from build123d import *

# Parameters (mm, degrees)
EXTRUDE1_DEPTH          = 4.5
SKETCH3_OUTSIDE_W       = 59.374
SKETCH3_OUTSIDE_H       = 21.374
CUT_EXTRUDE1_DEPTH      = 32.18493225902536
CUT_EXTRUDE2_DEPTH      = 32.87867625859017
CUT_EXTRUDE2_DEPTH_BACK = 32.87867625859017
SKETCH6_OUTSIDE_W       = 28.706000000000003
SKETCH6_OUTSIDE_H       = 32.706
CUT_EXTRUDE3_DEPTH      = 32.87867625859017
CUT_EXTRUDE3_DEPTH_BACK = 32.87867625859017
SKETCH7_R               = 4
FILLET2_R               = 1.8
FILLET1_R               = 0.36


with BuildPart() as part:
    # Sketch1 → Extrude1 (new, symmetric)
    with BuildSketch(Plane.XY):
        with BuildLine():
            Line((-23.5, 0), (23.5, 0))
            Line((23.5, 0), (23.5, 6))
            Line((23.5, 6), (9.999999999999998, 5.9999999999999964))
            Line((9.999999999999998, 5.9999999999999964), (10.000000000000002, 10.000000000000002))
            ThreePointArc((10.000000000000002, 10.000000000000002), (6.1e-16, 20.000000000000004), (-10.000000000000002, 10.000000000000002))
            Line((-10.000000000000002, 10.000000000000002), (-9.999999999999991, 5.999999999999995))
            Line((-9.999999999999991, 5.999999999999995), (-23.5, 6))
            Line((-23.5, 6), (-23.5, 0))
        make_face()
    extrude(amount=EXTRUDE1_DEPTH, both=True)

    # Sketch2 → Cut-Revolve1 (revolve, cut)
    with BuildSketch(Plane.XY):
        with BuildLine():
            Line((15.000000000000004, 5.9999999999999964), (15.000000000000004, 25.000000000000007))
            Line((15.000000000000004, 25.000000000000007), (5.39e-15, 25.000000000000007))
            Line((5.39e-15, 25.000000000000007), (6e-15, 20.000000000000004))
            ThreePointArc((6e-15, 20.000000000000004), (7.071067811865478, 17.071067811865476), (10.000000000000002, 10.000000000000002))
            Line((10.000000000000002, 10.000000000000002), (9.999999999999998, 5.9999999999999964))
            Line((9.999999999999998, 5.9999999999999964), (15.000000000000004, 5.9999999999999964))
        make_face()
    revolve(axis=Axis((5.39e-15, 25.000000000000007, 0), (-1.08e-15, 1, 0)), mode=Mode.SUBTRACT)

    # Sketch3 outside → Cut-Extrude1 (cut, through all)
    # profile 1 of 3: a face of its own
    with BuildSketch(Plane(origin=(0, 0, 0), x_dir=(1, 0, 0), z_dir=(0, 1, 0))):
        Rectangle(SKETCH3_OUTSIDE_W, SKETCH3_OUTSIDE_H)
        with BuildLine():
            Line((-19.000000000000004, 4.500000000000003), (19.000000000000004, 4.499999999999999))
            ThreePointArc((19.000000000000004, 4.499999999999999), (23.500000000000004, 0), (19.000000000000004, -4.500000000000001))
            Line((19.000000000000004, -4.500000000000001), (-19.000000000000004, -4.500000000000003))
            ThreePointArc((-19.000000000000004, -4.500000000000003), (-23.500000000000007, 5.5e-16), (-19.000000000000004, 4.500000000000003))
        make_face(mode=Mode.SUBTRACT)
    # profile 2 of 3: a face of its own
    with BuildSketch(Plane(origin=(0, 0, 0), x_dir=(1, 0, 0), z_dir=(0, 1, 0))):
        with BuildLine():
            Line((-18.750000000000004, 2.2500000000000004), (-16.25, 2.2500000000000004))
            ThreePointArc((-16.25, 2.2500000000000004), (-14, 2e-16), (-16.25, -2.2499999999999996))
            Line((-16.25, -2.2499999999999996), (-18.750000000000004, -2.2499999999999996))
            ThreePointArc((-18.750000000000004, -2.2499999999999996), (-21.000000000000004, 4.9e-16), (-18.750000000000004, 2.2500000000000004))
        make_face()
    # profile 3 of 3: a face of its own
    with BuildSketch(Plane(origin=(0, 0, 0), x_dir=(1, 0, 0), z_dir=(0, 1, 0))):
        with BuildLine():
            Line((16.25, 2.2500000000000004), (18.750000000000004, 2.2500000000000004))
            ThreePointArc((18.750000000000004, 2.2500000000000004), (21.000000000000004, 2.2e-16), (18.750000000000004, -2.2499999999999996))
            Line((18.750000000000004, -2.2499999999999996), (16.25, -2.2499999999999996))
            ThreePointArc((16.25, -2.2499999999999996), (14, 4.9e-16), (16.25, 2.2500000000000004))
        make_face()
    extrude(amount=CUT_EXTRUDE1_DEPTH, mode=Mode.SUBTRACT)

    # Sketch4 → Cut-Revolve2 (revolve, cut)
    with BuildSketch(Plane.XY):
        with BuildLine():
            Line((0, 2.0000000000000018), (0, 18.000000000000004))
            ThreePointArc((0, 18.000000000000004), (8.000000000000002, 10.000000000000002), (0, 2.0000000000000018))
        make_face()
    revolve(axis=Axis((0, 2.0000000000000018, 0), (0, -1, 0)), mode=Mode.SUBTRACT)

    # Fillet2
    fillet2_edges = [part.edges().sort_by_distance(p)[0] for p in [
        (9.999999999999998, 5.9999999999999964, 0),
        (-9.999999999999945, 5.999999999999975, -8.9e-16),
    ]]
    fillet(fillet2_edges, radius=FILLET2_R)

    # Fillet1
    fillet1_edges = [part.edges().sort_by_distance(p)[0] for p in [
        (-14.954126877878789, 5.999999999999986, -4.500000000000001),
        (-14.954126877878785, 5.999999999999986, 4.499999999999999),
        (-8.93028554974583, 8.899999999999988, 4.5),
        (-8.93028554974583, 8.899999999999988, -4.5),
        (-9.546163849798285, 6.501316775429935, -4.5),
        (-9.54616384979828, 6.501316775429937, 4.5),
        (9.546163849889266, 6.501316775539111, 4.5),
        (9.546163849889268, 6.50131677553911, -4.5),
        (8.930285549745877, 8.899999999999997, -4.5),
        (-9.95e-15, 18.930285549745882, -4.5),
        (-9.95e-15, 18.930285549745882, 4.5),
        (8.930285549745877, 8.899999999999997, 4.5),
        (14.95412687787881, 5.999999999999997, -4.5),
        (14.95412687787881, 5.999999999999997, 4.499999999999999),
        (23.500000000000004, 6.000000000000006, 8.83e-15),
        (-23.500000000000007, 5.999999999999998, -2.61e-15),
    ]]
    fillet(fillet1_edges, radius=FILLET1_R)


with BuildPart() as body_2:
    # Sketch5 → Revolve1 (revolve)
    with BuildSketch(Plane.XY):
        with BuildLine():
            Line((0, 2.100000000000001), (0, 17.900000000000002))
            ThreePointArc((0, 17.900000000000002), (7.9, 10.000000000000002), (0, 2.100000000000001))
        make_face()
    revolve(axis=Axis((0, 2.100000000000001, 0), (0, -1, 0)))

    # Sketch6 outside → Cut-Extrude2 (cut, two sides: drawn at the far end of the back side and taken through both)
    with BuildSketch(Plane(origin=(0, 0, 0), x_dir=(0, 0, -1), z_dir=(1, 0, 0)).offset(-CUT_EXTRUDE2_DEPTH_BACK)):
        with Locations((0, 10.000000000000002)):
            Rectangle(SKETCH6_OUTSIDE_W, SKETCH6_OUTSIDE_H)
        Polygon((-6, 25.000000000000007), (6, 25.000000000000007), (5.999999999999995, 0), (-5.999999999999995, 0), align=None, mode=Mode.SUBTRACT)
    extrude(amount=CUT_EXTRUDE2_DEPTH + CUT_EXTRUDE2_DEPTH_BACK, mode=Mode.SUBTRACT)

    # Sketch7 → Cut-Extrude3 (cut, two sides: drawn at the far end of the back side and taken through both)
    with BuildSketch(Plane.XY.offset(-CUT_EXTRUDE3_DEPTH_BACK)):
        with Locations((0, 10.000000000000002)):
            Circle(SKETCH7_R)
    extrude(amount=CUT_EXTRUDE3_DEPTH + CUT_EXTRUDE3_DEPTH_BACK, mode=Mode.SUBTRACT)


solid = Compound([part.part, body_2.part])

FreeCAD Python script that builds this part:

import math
import FreeCAD as App
import Part
import Sketcher
from FreeCAD import Vector


def edges_at(feature, points):
    """Names of the edges that pass closest to the given points."""
    edges = feature.Shape.Edges
    near = lambda p: min(range(len(edges)), key=lambda i: edges[i].distToShape(Part.Vertex(*p))[0])
    return sorted({f"Edge{near(p) + 1}" for p in points})

doc = App.newDocument("Part")
body = doc.addObject("PartDesign::Body", "Body")

# Sketch on XY plane
sketch1 = body.newObject("Sketcher::SketchObject", "Sketch")
sketch1.AttachmentSupport = (doc.getObject("XY_Plane"), [""])
sketch1.MapMode = "FlatFace"
sketch1.addGeometry(Part.LineSegment(Vector(-23.5, 0, 0), Vector(23.5, 0, 0)), False)
sketch1.addGeometry(Part.LineSegment(Vector(23.5, 0, 0), Vector(23.5, 6, 0)), False)
sketch1.addGeometry(Part.LineSegment(Vector(23.5, 6, 0), Vector(10, 6, 0)), False)
sketch1.addGeometry(Part.LineSegment(Vector(10, 6, 0), Vector(10, 10, 0)), False)
sketch1.addGeometry(Part.ArcOfCircle(Part.Circle(Vector(0, 10, 0), Vector(0, 0, 1), 10), math.radians(0), math.radians(180)), False)
sketch1.addGeometry(Part.LineSegment(Vector(-10, 10, 0), Vector(-10, 6, 0)), False)
sketch1.addGeometry(Part.LineSegment(Vector(-10, 6, 0), Vector(-23.5, 6, 0)), False)
sketch1.addGeometry(Part.LineSegment(Vector(-23.5, 6, 0), Vector(-23.5, 0, 0)), False)
sketch1.addConstraint(Sketcher.Constraint("Coincident", 0, 2, 1, 1))
sketch1.addConstraint(Sketcher.Constraint("Coincident", 1, 2, 2, 1))
sketch1.addConstraint(Sketcher.Constraint("Coincident", 2, 2, 3, 1))
sketch1.addConstraint(Sketcher.Constraint("Tangent", 3, 2, 4, 1))
sketch1.addConstraint(Sketcher.Constraint("Tangent", 4, 2, 5, 1))
sketch1.addConstraint(Sketcher.Constraint("Coincident", 5, 2, 6, 1))
sketch1.addConstraint(Sketcher.Constraint("Coincident", 6, 2, 7, 1))
sketch1.addConstraint(Sketcher.Constraint("Coincident", 7, 2, 0, 1))
sketch1.addConstraint(Sketcher.Constraint("Horizontal", 0))
sketch1.addConstraint(Sketcher.Constraint("Vertical", 1))
sketch1.addConstraint(Sketcher.Constraint("Horizontal", 2))
sketch1.addConstraint(Sketcher.Constraint("Vertical", 3))
sketch1.addConstraint(Sketcher.Constraint("Vertical", 5))
sketch1.addConstraint(Sketcher.Constraint("Horizontal", 6))
sketch1.addConstraint(Sketcher.Constraint("Vertical", 7))
sketch1.addConstraint(Sketcher.Constraint("Symmetric", 0, 2, 7, 2, -1, 1))
sketch1.addConstraint(Sketcher.Constraint("Symmetric", 2, 2, 5, 2, -2))
sketch1.addConstraint(Sketcher.Constraint("Radius", 4, 10.0))
sketch1.addConstraint(Sketcher.Constraint("DistanceX", 0, 1, 0, 2, 47.0))
sketch1.addConstraint(Sketcher.Constraint("DistanceY", 1, 1, 1, 2, 6.0))
sketch1.addConstraint(Sketcher.Constraint("DistanceY", 3, 1, 3, 2, 4.0))
pad1 = body.newObject("PartDesign::Pad", "Pad")
pad1.Profile = sketch1
pad1.Length = 9
pad1.Midplane = True

# Sketch on XY plane
sketch2 = body.newObject("Sketcher::SketchObject", "Sketch001")
sketch2.AttachmentSupport = (doc.getObject("XY_Plane"), [""])
sketch2.MapMode = "FlatFace"
sketch2.addGeometry(Part.LineSegment(Vector(15, 6, 0), Vector(15, 25, 0)), False)
sketch2.addGeometry(Part.LineSegment(Vector(15, 25, 0), Vector(0, 25, 0)), False)
sketch2.addGeometry(Part.LineSegment(Vector(0, 25, 0), Vector(0, 20, 0)), False)
sketch2.addGeometry(Part.ArcOfCircle(Part.Circle(Vector(0, 10, 0), Vector(0, 0, 1), 10), math.radians(0), math.radians(90)), False)
sketch2.addGeometry(Part.LineSegment(Vector(10, 10, 0), Vector(10, 6, 0)), False)
sketch2.addGeometry(Part.LineSegment(Vector(10, 6, 0), Vector(15, 6, 0)), False)
sketch2.addConstraint(Sketcher.Constraint("Coincident", 0, 2, 1, 1))
sketch2.addConstraint(Sketcher.Constraint("Coincident", 1, 2, 2, 1))
sketch2.addConstraint(Sketcher.Constraint("Coincident", 2, 2, 3, 2))
sketch2.addConstraint(Sketcher.Constraint("Tangent", 3, 1, 4, 1))
sketch2.addConstraint(Sketcher.Constraint("Coincident", 4, 2, 5, 1))
sketch2.addConstraint(Sketcher.Constraint("Coincident", 5, 2, 0, 1))
sketch2.addConstraint(Sketcher.Constraint("Vertical", 0))
sketch2.addConstraint(Sketcher.Constraint("Horizontal", 1))
sketch2.addConstraint(Sketcher.Constraint("Vertical", 2))
sketch2.addConstraint(Sketcher.Constraint("Vertical", 4))
sketch2.addConstraint(Sketcher.Constraint("Horizontal", 5))
sketch2.addConstraint(Sketcher.Constraint("PointOnObject", 3, 3, -2))
sketch2.addConstraint(Sketcher.Constraint("PointOnObject", 1, 2, -2))
sketch2.addConstraint(Sketcher.Constraint("Equal", 5, 2))
sketch2.addConstraint(Sketcher.Constraint("Radius", 3, 10.0))
sketch2.addConstraint(Sketcher.Constraint("DistanceX", 1, 2, 1, 1, 15.0))
sketch2.addConstraint(Sketcher.Constraint("DistanceY", 0, 1, 0, 2, 19.0))
sketch2.addConstraint(Sketcher.Constraint("DistanceY", -1, 1, 3, 3, 10.0))
groove = body.newObject("PartDesign::Groove", "Groove")
groove.Profile = sketch2
groove.ReferenceAxis = (sketch2, ["V_Axis"])
groove.Angle = 360

# Sketch on XZ plane
sketch3 = body.newObject("Sketcher::SketchObject", "Sketch002")
sketch3.AttachmentSupport = (doc.getObject("XZ_Plane"), [""])
sketch3.MapMode = "FlatFace"
sketch3.addGeometry(Part.LineSegment(Vector(-29.7, -10.7, 0), Vector(-29.7, 10.7, 0)), False)
sketch3.addGeometry(Part.LineSegment(Vector(-29.7, 10.7, 0), Vector(29.7, 10.7, 0)), False)
sketch3.addGeometry(Part.LineSegment(Vector(29.7, 10.7, 0), Vector(29.7, -10.7, 0)), False)
sketch3.addGeometry(Part.LineSegment(Vector(29.7, -10.7, 0), Vector(-29.7, -10.7, 0)), False)
sketch3.addGeometry(Part.ArcOfCircle(Part.Circle(Vector(-19, 0, 0), Vector(0, 0, 1), 4.5), math.radians(90), math.radians(270)), False)
sketch3.addGeometry(Part.LineSegment(Vector(-19, -4.5, 0), Vector(19, -4.5, 0)), False)
sketch3.addGeometry(Part.ArcOfCircle(Part.Circle(Vector(19, 0, 0), Vector(0, 0, 1), 4.5), math.radians(-90), math.radians(90)), False)
sketch3.addGeometry(Part.LineSegment(Vector(19, 4.5, 0), Vector(-19, 4.5, 0)), False)
sketch3.addGeometry(Part.LineSegment(Vector(-16.2, -2.2, 0), Vector(-18.8, -2.2, 0)), False)
sketch3.addGeometry(Part.ArcOfCircle(Part.Circle(Vector(-18.8, 0, 0), Vector(0, 0, 1), 2.2), math.radians(90), math.radians(270)), False)
sketch3.addGeometry(Part.LineSegment(Vector(-18.8, 2.2, 0), Vector(-16.2, 2.2, 0)), False)
sketch3.addGeometry(Part.ArcOfCircle(Part.Circle(Vector(-16.2, 0, 0), Vector(0, 0, 1), 2.2), math.radians(-90), math.radians(90)), False)
sketch3.addGeometry(Part.LineSegment(Vector(18.8, -2.2, 0), Vector(16.2, -2.2, 0)), False)
sketch3.addGeometry(Part.ArcOfCircle(Part.Circle(Vector(16.2, 0, 0), Vector(0, 0, 1), 2.2), math.radians(90), math.radians(270)), False)
sketch3.addGeometry(Part.LineSegment(Vector(16.2, 2.2, 0), Vector(18.8, 2.2, 0)), False)
sketch3.addGeometry(Part.ArcOfCircle(Part.Circle(Vector(18.8, 0, 0), Vector(0, 0, 1), 2.2), math.radians(-90), math.radians(90)), False)
sketch3.addConstraint(Sketcher.Constraint("Coincident", 0, 2, 1, 1))
sketch3.addConstraint(Sketcher.Constraint("Coincident", 1, 2, 2, 1))
sketch3.addConstraint(Sketcher.Constraint("Coincident", 2, 2, 3, 1))
sketch3.addConstraint(Sketcher.Constraint("Coincident", 3, 2, 0, 1))
sketch3.addConstraint(Sketcher.Constraint("Tangent", 4, 2, 5, 1))
sketch3.addConstraint(Sketcher.Constraint("Tangent", 5, 2, 6, 1))
sketch3.addConstraint(Sketcher.Constraint("Tangent", 6, 2, 7, 1))
sketch3.addConstraint(Sketcher.Constraint("Tangent", 7, 2, 4, 1))
sketch3.addConstraint(Sketcher.Constraint("Tangent", 8, 2, 9, 2))
sketch3.addConstraint(Sketcher.Constraint("Tangent", 9, 1, 10, 1))
sketch3.addConstraint(Sketcher.Constraint("Tangent", 10, 2, 11, 2))
sketch3.addConstraint(Sketcher.Constraint("Tangent", 11, 1, 8, 1))
sketch3.addConstraint(Sketcher.Constraint("Tangent", 12, 2, 13, 2))
sketch3.addConstraint(Sketcher.Constraint("Tangent", 13, 1, 14, 1))
sketch3.addConstraint(Sketcher.Constraint("Tangent", 14, 2, 15, 2))
sketch3.addConstraint(Sketcher.Constraint("Tangent", 15, 1, 12, 1))
sketch3.addConstraint(Sketcher.Constraint("Vertical", 0))
sketch3.addConstraint(Sketcher.Constraint("Horizontal", 1))
sketch3.addConstraint(Sketcher.Constraint("Vertical", 2))
sketch3.addConstraint(Sketcher.Constraint("Horizontal", 3))
sketch3.addConstraint(Sketcher.Constraint("Horizontal", 5))
sketch3.addConstraint(Sketcher.Constraint("Horizontal", 7))
sketch3.addConstraint(Sketcher.Constraint("Horizontal", 8))
sketch3.addConstraint(Sketcher.Constraint("Horizontal", 10))
sketch3.addConstraint(Sketcher.Constraint("Horizontal", 12))
sketch3.addConstraint(Sketcher.Constraint("Horizontal", 14))
sketch3.addConstraint(Sketcher.Constraint("Equal", 11, 13))
sketch3.addConstraint(Sketcher.Constraint("Symmetric", 4, 3, 6, 3, -1, 1))
sketch3.addConstraint(Sketcher.Constraint("Symmetric", 11, 3, 13, 3, -1, 1))
sketch3.addConstraint(Sketcher.Constraint("Symmetric", 0, 2, 2, 2, -1, 1))
sketch3.addConstraint(Sketcher.Constraint("Symmetric", 9, 3, 15, 3, -2))
sketch3.addConstraint(Sketcher.Constraint("Radius", 4, 4.5))
sketch3.addConstraint(Sketcher.Constraint("DistanceX", 5, 1, 5, 2, 38.0))
sketch3.addConstraint(Sketcher.Constraint("Radius", 9, 2.25))
sketch3.addConstraint(Sketcher.Constraint("DistanceX", 8, 2, 8, 1, 2.5))
sketch3.addConstraint(Sketcher.Constraint("DistanceX", 9, 3, 13, 3, 35.0))
sketch3.addConstraint(Sketcher.Constraint("DistanceX", 1, 1, 1, 2, 59.374))
sketch3.addConstraint(Sketcher.Constraint("DistanceY", 0, 1, 0, 2, 21.374))
pocket1 = body.newObject("PartDesign::Pocket", "Pocket")
pocket1.Profile = sketch3
pocket1.Length = 32.184932

# Sketch on XY plane
sketch4 = body.newObject("Sketcher::SketchObject", "Sketch003")
sketch4.AttachmentSupport = (doc.getObject("XY_Plane"), [""])
sketch4.MapMode = "FlatFace"
sketch4.addGeometry(Part.LineSegment(Vector(0, 18, 0), Vector(0, 2, 0)), False)
sketch4.addGeometry(Part.ArcOfCircle(Part.Circle(Vector(0, 10, 0), Vector(0, 0, 1), 8), math.radians(-90), math.radians(90)), False)
sketch4.addConstraint(Sketcher.Constraint("Coincident", 0, 1, 1, 2))
sketch4.addConstraint(Sketcher.Constraint("Coincident", 1, 1, 0, 2))
sketch4.addConstraint(Sketcher.Constraint("Vertical", 0))
sketch4.addConstraint(Sketcher.Constraint("PointOnObject", 1, 3, -2))
sketch4.addConstraint(Sketcher.Constraint("PointOnObject", 0, 1, -2))
sketch4.addConstraint(Sketcher.Constraint("Radius", 1, 8.0))
sketch4.addConstraint(Sketcher.Constraint("DistanceY", -1, 1, 1, 3, 10.0))
groove2 = body.newObject("PartDesign::Groove", "Groove001")
groove2.Profile = sketch4
groove2.ReferenceAxis = (sketch4, ["V_Axis"])
groove2.Angle = 360
doc.recompute()

fillet = body.newObject("PartDesign::Fillet", "Fillet")
fillet.Base = (groove2, edges_at(groove2, [(10, 6, 0), (-10, 6, 0)]))
fillet.Radius = 1.8
doc.recompute()

fillet2 = body.newObject("PartDesign::Fillet", "Fillet001")
fillet2.Base = (fillet, edges_at(fillet, [
    (-14.954, 6, -4.5),
    (-14.954, 6, 4.5),
    (-8.93, 8.9, 4.5),
    (-8.93, 8.9, -4.5),
    (-9.546, 6.501, -4.5),
    (-9.546, 6.501, 4.5),
    (9.546, 6.501, 4.5),
    (9.546, 6.501, -4.5),
    (8.93, 8.9, -4.5),
    (0, 18.93, -4.5),
    (0, 18.93, 4.5),
    (8.93, 8.9, 4.5),
    (14.954, 6, -4.5),
    (14.954, 6, 4.5),
    (23.5, 6, 0),
    (-23.5, 6, 0),
]))
fillet2.Radius = 0.36
body2 = doc.addObject("PartDesign::Body", "Body001")

# Sketch on XY plane
sketch5 = body2.newObject("Sketcher::SketchObject", "Sketch004")
sketch5.AttachmentSupport = (doc.getObject("XY_Plane001"), [""])
sketch5.MapMode = "FlatFace"
sketch5.addGeometry(Part.LineSegment(Vector(0, 18, 0), Vector(0, 2, 0)), False)
sketch5.addGeometry(Part.ArcOfCircle(Part.Circle(Vector(0, 10, 0), Vector(0, 0, 1), 8), math.radians(-90), math.radians(90)), False)
sketch5.addConstraint(Sketcher.Constraint("Coincident", 0, 1, 1, 2))
sketch5.addConstraint(Sketcher.Constraint("Coincident", 1, 1, 0, 2))
sketch5.addConstraint(Sketcher.Constraint("Vertical", 0))
sketch5.addConstraint(Sketcher.Constraint("PointOnObject", 1, 3, -2))
sketch5.addConstraint(Sketcher.Constraint("PointOnObject", 0, 1, -2))
sketch5.addConstraint(Sketcher.Constraint("Radius", 1, 7.9))
sketch5.addConstraint(Sketcher.Constraint("DistanceY", -1, 1, 1, 3, 10.0))
revolution = body2.newObject("PartDesign::Revolution", "Revolution")
revolution.Profile = sketch5
revolution.ReferenceAxis = (sketch5, ["V_Axis"])
revolution.Angle = 360

# Sketch on YZ plane
sketch6 = body2.newObject("Sketcher::SketchObject", "Sketch005")
sketch6.AttachmentSupport = (doc.getObject("YZ_Plane001"), [""])
sketch6.MapMode = "FlatFace"
sketch6.addGeometry(Part.LineSegment(Vector(26, 14, 0), Vector(-6, 14, 0)), False)
sketch6.addGeometry(Part.LineSegment(Vector(-6, 14, 0), Vector(-6, -14, 0)), False)
sketch6.addGeometry(Part.LineSegment(Vector(-6, -14, 0), Vector(26, -14, 0)), False)
sketch6.addGeometry(Part.LineSegment(Vector(26, -14, 0), Vector(26, 14, 0)), False)
sketch6.addGeometry(Part.LineSegment(Vector(0, 6, 0), Vector(25, 6, 0)), False)
sketch6.addGeometry(Part.LineSegment(Vector(25, 6, 0), Vector(25, -6, 0)), False)
sketch6.addGeometry(Part.LineSegment(Vector(25, -6, 0), Vector(0, -6, 0)), False)
sketch6.addGeometry(Part.LineSegment(Vector(0, -6, 0), Vector(0, 6, 0)), False)
sketch6.addConstraint(Sketcher.Constraint("Coincident", 0, 2, 1, 1))
sketch6.addConstraint(Sketcher.Constraint("Coincident", 1, 2, 2, 1))
sketch6.addConstraint(Sketcher.Constraint("Coincident", 2, 2, 3, 1))
sketch6.addConstraint(Sketcher.Constraint("Coincident", 3, 2, 0, 1))
sketch6.addConstraint(Sketcher.Constraint("Coincident", 4, 2, 5, 1))
sketch6.addConstraint(Sketcher.Constraint("Coincident", 5, 2, 6, 1))
sketch6.addConstraint(Sketcher.Constraint("Coincident", 6, 2, 7, 1))
sketch6.addConstraint(Sketcher.Constraint("Coincident", 7, 2, 4, 1))
sketch6.addConstraint(Sketcher.Constraint("Horizontal", 0))
sketch6.addConstraint(Sketcher.Constraint("Vertical", 1))
sketch6.addConstraint(Sketcher.Constraint("Horizontal", 2))
sketch6.addConstraint(Sketcher.Constraint("Vertical", 3))
sketch6.addConstraint(Sketcher.Constraint("Horizontal", 4))
sketch6.addConstraint(Sketcher.Constraint("Vertical", 5))
sketch6.addConstraint(Sketcher.Constraint("Horizontal", 6))
sketch6.addConstraint(Sketcher.Constraint("Vertical", 7))
sketch6.addConstraint(Sketcher.Constraint("Symmetric", 6, 2, 7, 2, -1, 1))
sketch6.addConstraint(Sketcher.Constraint("DistanceX", 4, 1, 4, 2, 25.0))
sketch6.addConstraint(Sketcher.Constraint("DistanceY", 5, 2, 5, 1, 12.0))
sketch6.addConstraint(Sketcher.Constraint("DistanceX", 0, 2, 0, 1, 32.706))
sketch6.addConstraint(Sketcher.Constraint("DistanceY", 1, 2, 1, 1, 28.706))
sketch6.addConstraint(Sketcher.Constraint("DistanceX", 0, 2, -1, 1, 6.353))
sketch6.addConstraint(Sketcher.Constraint("DistanceY", -1, 1, 0, 2, 14.353))
pocket2 = body2.newObject("PartDesign::Pocket", "Pocket001")
pocket2.Profile = sketch6
pocket2.Type = "ThroughAll"
pocket2.Midplane = True

# Sketch on XY plane
sketch7 = body2.newObject("Sketcher::SketchObject", "Sketch006")
sketch7.AttachmentSupport = (doc.getObject("XY_Plane001"), [""])
sketch7.MapMode = "FlatFace"
sketch7.addGeometry(Part.Circle(Vector(0, 10, 0), Vector(0, 0, 1), 4), False)
sketch7.addConstraint(Sketcher.Constraint("PointOnObject", 0, 3, -2))
sketch7.addConstraint(Sketcher.Constraint("Diameter", 0, 8.0))
sketch7.addConstraint(Sketcher.Constraint("DistanceY", -1, 1, 0, 3, 10.0))
pocket3 = body2.newObject("PartDesign::Pocket", "Pocket002")
pocket3.Profile = sketch7
pocket3.Type = "ThroughAll"
pocket3.Midplane = True

doc.recompute()
